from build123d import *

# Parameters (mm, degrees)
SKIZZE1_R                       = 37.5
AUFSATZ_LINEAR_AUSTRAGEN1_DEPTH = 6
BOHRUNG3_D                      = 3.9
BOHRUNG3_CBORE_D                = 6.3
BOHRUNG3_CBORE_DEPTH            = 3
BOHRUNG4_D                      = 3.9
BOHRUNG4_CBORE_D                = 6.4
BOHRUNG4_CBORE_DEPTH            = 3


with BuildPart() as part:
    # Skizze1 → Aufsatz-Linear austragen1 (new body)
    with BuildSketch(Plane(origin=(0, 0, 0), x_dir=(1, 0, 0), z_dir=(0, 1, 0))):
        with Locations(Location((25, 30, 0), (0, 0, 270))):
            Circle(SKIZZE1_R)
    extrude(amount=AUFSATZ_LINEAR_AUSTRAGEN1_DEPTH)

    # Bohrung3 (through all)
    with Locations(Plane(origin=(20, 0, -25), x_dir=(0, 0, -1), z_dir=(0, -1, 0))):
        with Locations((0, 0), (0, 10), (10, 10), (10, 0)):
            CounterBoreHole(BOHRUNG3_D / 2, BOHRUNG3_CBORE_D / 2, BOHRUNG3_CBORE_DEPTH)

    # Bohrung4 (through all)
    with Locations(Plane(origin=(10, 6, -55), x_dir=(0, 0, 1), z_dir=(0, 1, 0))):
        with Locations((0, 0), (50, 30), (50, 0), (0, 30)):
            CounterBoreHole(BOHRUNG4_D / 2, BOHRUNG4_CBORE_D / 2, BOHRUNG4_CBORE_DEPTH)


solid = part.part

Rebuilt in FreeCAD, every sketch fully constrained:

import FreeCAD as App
import Part
import Sketcher

V = App.Vector

doc = App.newDocument("Part")
body = doc.addObject("PartDesign::Body", "Body")

sketch1 = body.newObject("Sketcher::SketchObject", "Sketch")
sketch1.AttachmentSupport = (doc.getObject("XZ_Plane"), [""])
sketch1.MapMode = "FlatFace"
sketch1.addGeometry(Part.Circle(V(25, -30, 0), V(0, 0, 1), 37.5), False)
sketch1.addConstraint([
    Sketcher.Constraint("Diameter", 0, 75.0),
    Sketcher.Constraint("DistanceX", -1, 1, 0, 3, 25.0),
    Sketcher.Constraint("DistanceY", 0, 3, -1, 1, 30.0),
])
pad1 = body.newObject("PartDesign::Pad", "Pad")
pad1.Profile = sketch1
pad1.Length = 6
pad1.Reversed = True

sketch2 = body.newObject("Sketcher::SketchObject", "Sketch001")
sketch2.AttachmentSupport = (doc.getObject("XZ_Plane"), [""])
sketch2.MapMode = "FlatFace"
sketch2.addGeometry([
    Part.Circle(V(20, -25, 0), V(0, 0, 1), 1.95),
    Part.Circle(V(30, -25, 0), V(0, 0, 1), 1.95),
    Part.Circle(V(30, -35, 0), V(0, 0, 1), 1.95),
    Part.Circle(V(20, -35, 0), V(0, 0, 1), 1.95),
], False)
sketch2.addConstraint([
    Sketcher.Constraint("Equal", 0, 1),
    Sketcher.Constraint("Equal", 1, 2),
    Sketcher.Constraint("Equal", 2, 3),
    Sketcher.Constraint("Horizontal", 0, 3, 1, 3),
    Sketcher.Constraint("Horizontal", 2, 3, 3, 3),
    Sketcher.Constraint("Vertical", 1, 3, 2, 3),
    Sketcher.Constraint("Vertical", 0, 3, 3, 3),
    Sketcher.Constraint("Diameter", 0, 3.9),
    Sketcher.Constraint("DistanceX", -1, 1, 0, 3, 20.0),
    Sketcher.Constraint("DistanceY", 0, 3, -1, 1, 25.0),
    Sketcher.Constraint("DistanceX", -1, 1, 1, 3, 30.0),
    Sketcher.Constraint("DistanceY", 2, 3, -1, 1, 35.0),
])
doc.recompute()
hole = body.newObject("PartDesign::Hole", "Hole")
hole.Profile = sketch2
hole.ThreadType = "None"
hole.Diameter = 3.9
hole.DepthType = "ThroughAll"
hole.HoleCutType = "Counterbore"
hole.HoleCutDiameter = 6.3
hole.HoleCutDepth = 3

sketch3 = body.newObject("Sketcher::SketchObject", "Sketch002")
sketch3.AttachmentSupport = (doc.getObject("XZ_Plane"), [""])
sketch3.MapMode = "FlatFace"
sketch3.AttachmentOffset = App.Placement(V(0, 0, -6), App.Rotation())
sketch3.addGeometry([
    Part.Circle(V(10, -55, 0), V(0, 0, 1), 1.95),
    Part.Circle(V(40, -5, 0), V(0, 0, 1), 1.95),
    Part.Circle(V(10, -5, 0), V(0, 0, 1), 1.95),
    Part.Circle(V(40, -55, 0), V(0, 0, 1), 1.95),
], False)
sketch3.addConstraint([
    Sketcher.Constraint("Equal", 0, 1),
    Sketcher.Constraint("Equal", 1, 2),
    Sketcher.Constraint("Equal", 2, 3),
    Sketcher.Constraint("Horizontal", 1, 3, 2, 3),
    Sketcher.Constraint("Horizontal", 0, 3, 3, 3),
    Sketcher.Constraint("Vertical", 0, 3, 2, 3),
    Sketcher.Constraint("Vertical", 1, 3, 3, 3),
    Sketcher.Constraint("Diameter", 0, 3.9),
    Sketcher.Constraint("DistanceX", -1, 1, 0, 3, 10.0),
    Sketcher.Constraint("DistanceY", 0, 3, -1, 1, 55.0),
    Sketcher.Constraint("DistanceX", -1, 1, 1, 3, 40.0),
    Sketcher.Constraint("DistanceY", 1, 3, -1, 1, 5.0),
])
doc.recompute()
hole2 = body.newObject("PartDesign::Hole", "Hole001")
hole2.Profile = sketch3
hole2.ThreadType = "None"
hole2.Diameter = 3.9
hole2.DepthType = "ThroughAll"
hole2.HoleCutType = "Counterbore"
hole2.HoleCutDiameter = 6.4
hole2.HoleCutDepth = 3
hole2.Reversed = True

doc.recompute()
